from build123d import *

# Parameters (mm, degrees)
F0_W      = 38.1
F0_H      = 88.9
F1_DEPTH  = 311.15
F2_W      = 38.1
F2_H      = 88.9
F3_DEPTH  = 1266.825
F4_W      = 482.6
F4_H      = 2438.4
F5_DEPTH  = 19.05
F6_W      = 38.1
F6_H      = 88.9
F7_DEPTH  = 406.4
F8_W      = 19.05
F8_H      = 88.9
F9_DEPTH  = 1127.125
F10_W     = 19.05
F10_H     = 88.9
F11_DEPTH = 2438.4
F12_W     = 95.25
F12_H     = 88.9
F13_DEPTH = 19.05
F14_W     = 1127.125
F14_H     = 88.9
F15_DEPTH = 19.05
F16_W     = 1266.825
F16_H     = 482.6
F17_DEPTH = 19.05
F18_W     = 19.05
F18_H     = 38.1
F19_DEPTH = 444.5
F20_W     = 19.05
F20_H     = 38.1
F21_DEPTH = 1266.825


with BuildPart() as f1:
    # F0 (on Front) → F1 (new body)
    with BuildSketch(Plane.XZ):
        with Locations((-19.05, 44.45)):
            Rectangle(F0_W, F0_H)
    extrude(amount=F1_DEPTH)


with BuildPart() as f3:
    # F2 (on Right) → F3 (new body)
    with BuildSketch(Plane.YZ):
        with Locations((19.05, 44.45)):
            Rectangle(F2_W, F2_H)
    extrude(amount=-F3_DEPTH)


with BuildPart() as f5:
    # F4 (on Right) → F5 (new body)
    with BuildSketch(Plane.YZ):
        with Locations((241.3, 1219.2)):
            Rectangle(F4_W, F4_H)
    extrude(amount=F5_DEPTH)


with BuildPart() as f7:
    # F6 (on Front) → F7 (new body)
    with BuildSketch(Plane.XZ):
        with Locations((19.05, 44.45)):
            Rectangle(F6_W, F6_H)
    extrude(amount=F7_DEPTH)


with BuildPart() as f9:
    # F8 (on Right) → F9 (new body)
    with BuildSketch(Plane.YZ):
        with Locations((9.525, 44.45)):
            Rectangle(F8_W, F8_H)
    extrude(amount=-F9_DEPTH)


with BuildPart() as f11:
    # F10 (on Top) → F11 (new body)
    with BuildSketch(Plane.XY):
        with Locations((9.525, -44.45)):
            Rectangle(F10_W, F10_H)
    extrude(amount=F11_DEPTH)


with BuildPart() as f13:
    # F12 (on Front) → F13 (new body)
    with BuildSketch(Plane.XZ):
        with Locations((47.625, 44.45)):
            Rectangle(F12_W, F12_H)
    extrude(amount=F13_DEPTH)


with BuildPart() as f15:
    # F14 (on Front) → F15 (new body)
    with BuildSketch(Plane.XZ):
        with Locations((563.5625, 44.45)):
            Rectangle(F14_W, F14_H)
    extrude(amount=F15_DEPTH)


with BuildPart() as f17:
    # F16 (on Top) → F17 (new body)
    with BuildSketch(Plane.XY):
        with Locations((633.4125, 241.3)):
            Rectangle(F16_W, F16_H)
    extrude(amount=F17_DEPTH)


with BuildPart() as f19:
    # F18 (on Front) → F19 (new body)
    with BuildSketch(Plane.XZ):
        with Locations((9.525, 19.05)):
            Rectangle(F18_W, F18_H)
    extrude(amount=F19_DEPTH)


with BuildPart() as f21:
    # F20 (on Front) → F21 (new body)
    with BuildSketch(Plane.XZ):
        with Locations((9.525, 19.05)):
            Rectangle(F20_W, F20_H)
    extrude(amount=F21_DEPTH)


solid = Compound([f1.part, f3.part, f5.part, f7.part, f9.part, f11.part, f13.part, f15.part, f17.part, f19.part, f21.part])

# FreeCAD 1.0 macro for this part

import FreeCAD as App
import Part
import Sketcher
from FreeCAD import Vector
Q = App.Units.Quantity

doc = App.newDocument("Part")
body = doc.addObject("PartDesign::Body", "Body")

# Sketch on XZ plane
sketch1 = doc.addObject("Sketcher::SketchObject", "Sketch")
body.addObject(sketch1)
sketch1.AttachmentSupport = (doc.XZ_Plane, [""])
sketch1.MapMode = "FlatFace"
sketch1.addGeometry([
    Part.LineSegment(Vector(-38.1, 88.9, 0), Vector(-38.1, 0, 0)),
    Part.LineSegment(Vector(-38.1, 0, 0), Vector(0, 0, 0)),
    Part.LineSegment(Vector(0, 0, 0), Vector(0, 88.9, 0)),
    Part.LineSegment(Vector(0, 88.9, 0), Vector(-38.1, 88.9, 0)),
], False)
sketch1.addConstraint([
    Sketcher.Constraint("Coincident", 0, 2, 1, 1),
    Sketcher.Constraint("Coincident", 1, 2, 2, 1),
    Sketcher.Constraint("Coincident", 2, 2, 3, 1),
    Sketcher.Constraint("Coincident", 3, 2, 0, 1),
    Sketcher.Constraint("Vertical", 0),
    Sketcher.Constraint("Horizontal", 1),
    Sketcher.Constraint("Vertical", 2),
    Sketcher.Constraint("Horizontal", 3),
    Sketcher.Constraint("Coincident", 1, 2, -1, 1),
    Sketcher.Constraint("DistanceX", 1, 1, 1, 2, Q("1.5 in")),
    Sketcher.Constraint("DistanceY", 0, 2, 0, 1, Q("3.5 in")),
])
pad1 = doc.addObject("PartDesign::Pad", "Pad")
body.addObject(pad1)
pad1.Profile = sketch1
pad1.Length = Q("12.25 in")
body2 = doc.addObject("PartDesign::Body", "Body001")

# Sketch on YZ plane
sketch2 = doc.addObject("Sketcher::SketchObject", "Sketch001")
body2.addObject(sketch2)
sketch2.AttachmentSupport = (doc.getObject("YZ_Plane001"), [""])
sketch2.MapMode = "FlatFace"
sketch2.addGeometry([
    Part.LineSegment(Vector(0, 88.9, 0), Vector(0, 0, 0)),
    Part.LineSegment(Vector(0, 0, 0), Vector(38.1, 0, 0)),
    Part.LineSegment(Vector(38.1, 0, 0), Vector(38.1, 88.9, 0)),
    Part.LineSegment(Vector(38.1, 88.9, 0), Vector(0, 88.9, 0)),
], False)
sketch2.addConstraint([
    Sketcher.Constraint("Coincident", 0, 2, 1, 1),
    Sketcher.Constraint("Coincident", 1, 2, 2, 1),
    Sketcher.Constraint("Coincident", 2, 2, 3, 1),
    Sketcher.Constraint("Coincident", 3, 2, 0, 1),
    Sketcher.Constraint("Vertical", 0),
    Sketcher.Constraint("Horizontal", 1),
    Sketcher.Constraint("Vertical", 2),
    Sketcher.Constraint("Horizontal", 3),
    Sketcher.Constraint("Coincident", 0, 2, -1, 1),
    Sketcher.Constraint("DistanceX", 1, 1, 1, 2, Q("1.5 in")),
    Sketcher.Constraint("DistanceY", 0, 2, 0, 1, Q("3.5 in")),
])
pad2 = doc.addObject("PartDesign::Pad", "Pad001")
body2.addObject(pad2)
pad2.Profile = sketch2
pad2.Length = Q("49.875 in")
pad2.Reversed = True
body3 = doc.addObject("PartDesign::Body", "Body002")

# Sketch on YZ plane
sketch3 = doc.addObject("Sketcher::SketchObject", "Sketch002")
body3.addObject(sketch3)
sketch3.AttachmentSupport = (doc.getObject("YZ_Plane002"), [""])
sketch3.MapMode = "FlatFace"
sketch3.addGeometry([
    Part.LineSegment(Vector(0, 2438.4, 0), Vector(0, 0, 0)),
    Part.LineSegment(Vector(0, 0, 0), Vector(482.6, 0, 0)),
    Part.LineSegment(Vector(482.6, 0, 0), Vector(482.6, 2438.4, 0)),
    Part.LineSegment(Vector(482.6, 2438.4, 0), Vector(0, 2438.4, 0)),
], False)
sketch3.addConstraint([
    Sketcher.Constraint("Coincident", 0, 2, 1, 1),
    Sketcher.Constraint("Coincident", 1, 2, 2, 1),
    Sketcher.Constraint("Coincident", 2, 2, 3, 1),
    Sketcher.Constraint("Coincident", 3, 2, 0, 1),
    Sketcher.Constraint("Vertical", 0),
    Sketcher.Constraint("Horizontal", 1),
    Sketcher.Constraint("Vertical", 2),
    Sketcher.Constraint("Horizontal", 3),
    Sketcher.Constraint("Coincident", 0, 2, -1, 1),
    Sketcher.Constraint("DistanceX", 1, 1, 1, 2, Q("19 in")),
    Sketcher.Constraint("DistanceY", 0, 2, 0, 1, Q("96 in")),
])
pad3 = doc.addObject("PartDesign::Pad", "Pad002")
body3.addObject(pad3)
pad3.Profile = sketch3
pad3.Length = Q("0.75 in")
body4 = doc.addObject("PartDesign::Body", "Body003")

# Sketch on XZ plane
sketch4 = doc.addObject("Sketcher::SketchObject", "Sketch003")
body4.addObject(sketch4)
sketch4.AttachmentSupport = (doc.getObject("XZ_Plane003"), [""])
sketch4.MapMode = "FlatFace"
sketch4.addGeometry([
    Part.LineSegment(Vector(0, 88.9, 0), Vector(0, 0, 0)),
    Part.LineSegment(Vector(0, 0, 0), Vector(38.1, 0, 0)),
    Part.LineSegment(Vector(38.1, 0, 0), Vector(38.1, 88.9, 0)),
    Part.LineSegment(Vector(38.1, 88.9, 0), Vector(0, 88.9, 0)),
], False)
sketch4.addConstraint([
    Sketcher.Constraint("Coincident", 0, 2, 1, 1),
    Sketcher.Constraint("Coincident", 1, 2, 2, 1),
    Sketcher.Constraint("Coincident", 2, 2, 3, 1),
    Sketcher.Constraint("Coincident", 3, 2, 0, 1),
    Sketcher.Constraint("Vertical", 0),
    Sketcher.Constraint("Horizontal", 1),
    Sketcher.Constraint("Vertical", 2),
    Sketcher.Constraint("Horizontal", 3),
    Sketcher.Constraint("Coincident", 0, 2, -1, 1),
    Sketcher.Constraint("DistanceX", 1, 1, 1, 2, Q("1.5 in")),
    Sketcher.Constraint("DistanceY", 0, 2, 0, 1, Q("3.5 in")),
])
pad4 = doc.addObject("PartDesign::Pad", "Pad003")
body4.addObject(pad4)
pad4.Profile = sketch4
pad4.Length = Q("16 in")
body5 = doc.addObject("PartDesign::Body", "Body004")

# Sketch on YZ plane
sketch5 = doc.addObject("Sketcher::SketchObject", "Sketch004")
body5.addObject(sketch5)
sketch5.AttachmentSupport = (doc.getObject("YZ_Plane004"), [""])
sketch5.MapMode = "FlatFace"
sketch5.addGeometry([
    Part.LineSegment(Vector(0, 88.9, 0), Vector(0, 0, 0)),
    Part.LineSegment(Vector(0, 0, 0), Vector(19.05, 0, 0)),
    Part.LineSegment(Vector(19.05, 0, 0), Vector(19.05, 88.9, 0)),
    Part.LineSegment(Vector(19.05, 88.9, 0), Vector(0, 88.9, 0)),
], False)
sketch5.addConstraint([
    Sketcher.Constraint("Coincident", 0, 2, 1, 1),
    Sketcher.Constraint("Coincident", 1, 2, 2, 1),
    Sketcher.Constraint("Coincident", 2, 2, 3, 1),
    Sketcher.Constraint("Coincident", 3, 2, 0, 1),
    Sketcher.Constraint("Vertical", 0),
    Sketcher.Constraint("Horizontal", 1),
    Sketcher.Constraint("Vertical", 2),
    Sketcher.Constraint("Horizontal", 3),
    Sketcher.Constraint("Coincident", 0, 2, -1, 1),
    Sketcher.Constraint("DistanceY", 0, 2, 0, 1, Q("3.5 in")),
    Sketcher.Constraint("DistanceX", 1, 1, 1, 2, Q("0.75 in")),
])
pad5 = doc.addObject("PartDesign::Pad", "Pad004")
body5.addObject(pad5)
pad5.Profile = sketch5
pad5.Length = Q("44.375 in")
pad5.Reversed = True
body6 = doc.addObject("PartDesign::Body", "Body005")

# Sketch on XY plane
sketch6 = doc.addObject("Sketcher::SketchObject", "Sketch005")
body6.addObject(sketch6)
sketch6.AttachmentSupport = (doc.getObject("XY_Plane005"), [""])
sketch6.MapMode = "FlatFace"
sketch6.addGeometry([
    Part.LineSegment(Vector(0, 0, 0), Vector(0, -88.9, 0)),
    Part.LineSegment(Vector(0, -88.9, 0), Vector(19.05, -88.9, 0)),
    Part.LineSegment(Vector(19.05, -88.9, 0), Vector(19.05, 0, 0)),
    Part.LineSegment(Vector(19.05, 0, 0), Vector(0, 0, 0)),
], False)
sketch6.addConstraint([
    Sketcher.Constraint("Coincident", 0, 2, 1, 1),
    Sketcher.Constraint("Coincident", 1, 2, 2, 1),
    Sketcher.Constraint("Coincident", 2, 2, 3, 1),
    Sketcher.Constraint("Coincident", 3, 2, 0, 1),
    Sketcher.Constraint("Vertical", 0),
    Sketcher.Constraint("Horizontal", 1),
    Sketcher.Constraint("Vertical", 2),
    Sketcher.Constraint("Horizontal", 3),
    Sketcher.Constraint("Coincident", 3, 2, -1, 1),
    Sketcher.Constraint("DistanceY", 0, 2, 0, 1, Q("3.5 in")),
    Sketcher.Constraint("DistanceX", 1, 1, 1, 2, Q("0.75 in")),
])
pad6 = doc.addObject("PartDesign::Pad", "Pad005")
body6.addObject(pad6)
pad6.Profile = sketch6
pad6.Length = Q("96 in")
body7 = doc.addObject("PartDesign::Body", "Body006")

# Sketch on XZ plane
sketch7 = doc.addObject("Sketcher::SketchObject", "Sketch006")
body7.addObject(sketch7)
sketch7.AttachmentSupport = (doc.getObject("XZ_Plane006"), [""])
sketch7.MapMode = "FlatFace"
sketch7.addGeometry([
    Part.LineSegment(Vector(0, 88.9, 0), Vector(0, 0, 0)),
    Part.LineSegment(Vector(0, 0, 0), Vector(95.25, 0, 0)),
    Part.LineSegment(Vector(95.25, 0, 0), Vector(95.25, 88.9, 0)),
    Part.LineSegment(Vector(95.25, 88.9, 0), Vector(0, 88.9, 0)),
], False)
sketch7.addConstraint([
    Sketcher.Constraint("Coincident", 0, 2, 1, 1),
    Sketcher.Constraint("Coincident", 1, 2, 2, 1),
    Sketcher.Constraint("Coincident", 2, 2, 3, 1),
    Sketcher.Constraint("Coincident", 3, 2, 0, 1),
    Sketcher.Constraint("Vertical", 0),
    Sketcher.Constraint("Horizontal", 1),
    Sketcher.Constraint("Vertical", 2),
    Sketcher.Constraint("Horizontal", 3),
    Sketcher.Constraint("Coincident", 0, 2, -1, 1),
    Sketcher.Constraint("DistanceY", 0, 2, 0, 1, Q("3.5 in")),
    Sketcher.Constraint("DistanceX", 1, 1, 1, 2, Q("3.75 in")),
])
pad7 = doc.addObject("PartDesign::Pad", "Pad006")
body7.addObject(pad7)
pad7.Profile = sketch7
pad7.Length = Q("0.75 in")
body8 = doc.addObject("PartDesign::Body", "Body007")

# Sketch on XZ plane
sketch8 = doc.addObject("Sketcher::SketchObject", "Sketch007")
body8.addObject(sketch8)
sketch8.AttachmentSupport = (doc.getObject("XZ_Plane007"), [""])
sketch8.MapMode = "FlatFace"
sketch8.addGeometry([
    Part.LineSegment(Vector(0, 88.9, 0), Vector(0, 0, 0)),
    Part.LineSegment(Vector(0, 0, 0), Vector(1127.125, 0, 0)),
    Part.LineSegment(Vector(1127.125, 0, 0), Vector(1127.125, 88.9, 0)),
    Part.LineSegment(Vector(1127.125, 88.9, 0), Vector(0, 88.9, 0)),
], False)
sketch8.addConstraint([
    Sketcher.Constraint("Coincident", 0, 2, 1, 1),
    Sketcher.Constraint("Coincident", 1, 2, 2, 1),
    Sketcher.Constraint("Coincident", 2, 2, 3, 1),
    Sketcher.Constraint("Coincident", 3, 2, 0, 1),
    Sketcher.Constraint("Vertical", 0),
    Sketcher.Constraint("Horizontal", 1),
    Sketcher.Constraint("Vertical", 2),
    Sketcher.Constraint("Horizontal", 3),
    Sketcher.Constraint("Coincident", 0, 2, -1, 1),
    Sketcher.Constraint("DistanceY", 0, 2, 0, 1, Q("3.5 in")),
    Sketcher.Constraint("DistanceX", 1, 1, 1, 2, Q("44.375 in")),
])
pad8 = doc.addObject("PartDesign::Pad", "Pad007")
body8.addObject(pad8)
pad8.Profile = sketch8
pad8.Length = Q("0.75 in")
body9 = doc.addObject("PartDesign::Body", "Body008")

# Sketch on XY plane
sketch9 = doc.addObject("Sketcher::SketchObject", "Sketch008")
body9.addObject(sketch9)
sketch9.AttachmentSupport = (doc.getObject("XY_Plane008"), [""])
sketch9.MapMode = "FlatFace"
sketch9.addGeometry([
    Part.LineSegment(Vector(0, 482.6, 0), Vector(0, 0, 0)),
    Part.LineSegment(Vector(0, 0, 0), Vector(1266.825, 0, 0)),
    Part.LineSegment(Vector(1266.825, 0, 0), Vector(1266.825, 482.6, 0)),
    Part.LineSegment(Vector(1266.825, 482.6, 0), Vector(0, 482.6, 0)),
], False)
sketch9.addConstraint([
    Sketcher.Constraint("Coincident", 0, 2, 1, 1),
    Sketcher.Constraint("Coincident", 1, 2, 2, 1),
    Sketcher.Constraint("Coincident", 2, 2, 3, 1),
    Sketcher.Constraint("Coincident", 3, 2, 0, 1),
    Sketcher.Constraint("Vertical", 0),
    Sketcher.Constraint("Horizontal", 1),
    Sketcher.Constraint("Vertical", 2),
    Sketcher.Constraint("Horizontal", 3),
    Sketcher.Constraint("Coincident", 0, 2, -1, 1),
    Sketcher.Constraint("DistanceY", 0, 2, 0, 1, Q("19 in")),
    Sketcher.Constraint("DistanceX", 1, 1, 1, 2, Q("49.875 in")),
])
pad9 = doc.addObject("PartDesign::Pad", "Pad008")
body9.addObject(pad9)
pad9.Profile = sketch9
pad9.Length = Q("0.75 in")
body10 = doc.addObject("PartDesign::Body", "Body009")

# Sketch on XZ plane
sketch10 = doc.addObject("Sketcher::SketchObject", "Sketch009")
body10.addObject(sketch10)
sketch10.AttachmentSupport = (doc.getObject("XZ_Plane009"), [""])
sketch10.MapMode = "FlatFace"
sketch10.addGeometry([
    Part.LineSegment(Vector(0, 38.1, 0), Vector(0, 0, 0)),
    Part.LineSegment(Vector(0, 0, 0), Vector(19.05, 0, 0)),
    Part.LineSegment(Vector(19.05, 0, 0), Vector(19.05, 38.1, 0)),
    Part.LineSegment(Vector(19.05, 38.1, 0), Vector(0, 38.1, 0)),
], False)
sketch10.addConstraint([
    Sketcher.Constraint("Coincident", 0, 2, 1, 1),
    Sketcher.Constraint("Coincident", 1, 2, 2, 1),
    Sketcher.Constraint("Coincident", 2, 2, 3, 1),
    Sketcher.Constraint("Coincident", 3, 2, 0, 1),
    Sketcher.Constraint("Vertical", 0),
    Sketcher.Constraint("Horizontal", 1),
    Sketcher.Constraint("Vertical", 2),
    Sketcher.Constraint("Horizontal", 3),
    Sketcher.Constraint("Coincident", 0, 2, -1, 1),
    Sketcher.Constraint("DistanceY", 0, 2, 0, 1, Q("1.5 in")),
    Sketcher.Constraint("DistanceX", 1, 1, 1, 2, Q("0.75 in")),
])
pad10 = doc.addObject("PartDesign::Pad", "Pad009")
body10.addObject(pad10)
pad10.Profile = sketch10
pad10.Length = Q("17.5 in")
body11 = doc.addObject("PartDesign::Body", "Body010")

# Sketch on XZ plane
sketch11 = doc.addObject("Sketcher::SketchObject", "Sketch010")
body11.addObject(sketch11)
sketch11.AttachmentSupport = (doc.getObject("XZ_Plane010"), [""])
sketch11.MapMode = "FlatFace"
sketch11.addGeometry([
    Part.LineSegment(Vector(0, 38.1, 0), Vector(0, 0, 0)),
    Part.LineSegment(Vector(0, 0, 0), Vector(19.05, 0, 0)),
    Part.LineSegment(Vector(19.05, 0, 0), Vector(19.05, 38.1, 0)),
    Part.LineSegment(Vector(19.05, 38.1, 0), Vector(0, 38.1, 0)),
], False)
sketch11.addConstraint([
    Sketcher.Constraint("Coincident", 0, 2, 1, 1),
    Sketcher.Constraint("Coincident", 1, 2, 2, 1),
    Sketcher.Constraint("Coincident", 2, 2, 3, 1),
    Sketcher.Constraint("Coincident", 3, 2, 0, 1),
    Sketcher.Constraint("Vertical", 0),
    Sketcher.Constraint("Horizontal", 1),
    Sketcher.Constraint("Vertical", 2),
    Sketcher.Constraint("Horizontal", 3),
    Sketcher.Constraint("Coincident", 0, 2, -1, 1),
    Sketcher.Constraint("DistanceY", 0, 2, 0, 1, Q("1.5 in")),
    Sketcher.Constraint("DistanceX", 1, 1, 1, 2, Q("0.75 in")),
])
pad11 = doc.addObject("PartDesign::Pad", "Pad010")
body11.addObject(pad11)
pad11.Profile = sketch11
pad11.Length = Q("49.875 in")

doc.recompute()
